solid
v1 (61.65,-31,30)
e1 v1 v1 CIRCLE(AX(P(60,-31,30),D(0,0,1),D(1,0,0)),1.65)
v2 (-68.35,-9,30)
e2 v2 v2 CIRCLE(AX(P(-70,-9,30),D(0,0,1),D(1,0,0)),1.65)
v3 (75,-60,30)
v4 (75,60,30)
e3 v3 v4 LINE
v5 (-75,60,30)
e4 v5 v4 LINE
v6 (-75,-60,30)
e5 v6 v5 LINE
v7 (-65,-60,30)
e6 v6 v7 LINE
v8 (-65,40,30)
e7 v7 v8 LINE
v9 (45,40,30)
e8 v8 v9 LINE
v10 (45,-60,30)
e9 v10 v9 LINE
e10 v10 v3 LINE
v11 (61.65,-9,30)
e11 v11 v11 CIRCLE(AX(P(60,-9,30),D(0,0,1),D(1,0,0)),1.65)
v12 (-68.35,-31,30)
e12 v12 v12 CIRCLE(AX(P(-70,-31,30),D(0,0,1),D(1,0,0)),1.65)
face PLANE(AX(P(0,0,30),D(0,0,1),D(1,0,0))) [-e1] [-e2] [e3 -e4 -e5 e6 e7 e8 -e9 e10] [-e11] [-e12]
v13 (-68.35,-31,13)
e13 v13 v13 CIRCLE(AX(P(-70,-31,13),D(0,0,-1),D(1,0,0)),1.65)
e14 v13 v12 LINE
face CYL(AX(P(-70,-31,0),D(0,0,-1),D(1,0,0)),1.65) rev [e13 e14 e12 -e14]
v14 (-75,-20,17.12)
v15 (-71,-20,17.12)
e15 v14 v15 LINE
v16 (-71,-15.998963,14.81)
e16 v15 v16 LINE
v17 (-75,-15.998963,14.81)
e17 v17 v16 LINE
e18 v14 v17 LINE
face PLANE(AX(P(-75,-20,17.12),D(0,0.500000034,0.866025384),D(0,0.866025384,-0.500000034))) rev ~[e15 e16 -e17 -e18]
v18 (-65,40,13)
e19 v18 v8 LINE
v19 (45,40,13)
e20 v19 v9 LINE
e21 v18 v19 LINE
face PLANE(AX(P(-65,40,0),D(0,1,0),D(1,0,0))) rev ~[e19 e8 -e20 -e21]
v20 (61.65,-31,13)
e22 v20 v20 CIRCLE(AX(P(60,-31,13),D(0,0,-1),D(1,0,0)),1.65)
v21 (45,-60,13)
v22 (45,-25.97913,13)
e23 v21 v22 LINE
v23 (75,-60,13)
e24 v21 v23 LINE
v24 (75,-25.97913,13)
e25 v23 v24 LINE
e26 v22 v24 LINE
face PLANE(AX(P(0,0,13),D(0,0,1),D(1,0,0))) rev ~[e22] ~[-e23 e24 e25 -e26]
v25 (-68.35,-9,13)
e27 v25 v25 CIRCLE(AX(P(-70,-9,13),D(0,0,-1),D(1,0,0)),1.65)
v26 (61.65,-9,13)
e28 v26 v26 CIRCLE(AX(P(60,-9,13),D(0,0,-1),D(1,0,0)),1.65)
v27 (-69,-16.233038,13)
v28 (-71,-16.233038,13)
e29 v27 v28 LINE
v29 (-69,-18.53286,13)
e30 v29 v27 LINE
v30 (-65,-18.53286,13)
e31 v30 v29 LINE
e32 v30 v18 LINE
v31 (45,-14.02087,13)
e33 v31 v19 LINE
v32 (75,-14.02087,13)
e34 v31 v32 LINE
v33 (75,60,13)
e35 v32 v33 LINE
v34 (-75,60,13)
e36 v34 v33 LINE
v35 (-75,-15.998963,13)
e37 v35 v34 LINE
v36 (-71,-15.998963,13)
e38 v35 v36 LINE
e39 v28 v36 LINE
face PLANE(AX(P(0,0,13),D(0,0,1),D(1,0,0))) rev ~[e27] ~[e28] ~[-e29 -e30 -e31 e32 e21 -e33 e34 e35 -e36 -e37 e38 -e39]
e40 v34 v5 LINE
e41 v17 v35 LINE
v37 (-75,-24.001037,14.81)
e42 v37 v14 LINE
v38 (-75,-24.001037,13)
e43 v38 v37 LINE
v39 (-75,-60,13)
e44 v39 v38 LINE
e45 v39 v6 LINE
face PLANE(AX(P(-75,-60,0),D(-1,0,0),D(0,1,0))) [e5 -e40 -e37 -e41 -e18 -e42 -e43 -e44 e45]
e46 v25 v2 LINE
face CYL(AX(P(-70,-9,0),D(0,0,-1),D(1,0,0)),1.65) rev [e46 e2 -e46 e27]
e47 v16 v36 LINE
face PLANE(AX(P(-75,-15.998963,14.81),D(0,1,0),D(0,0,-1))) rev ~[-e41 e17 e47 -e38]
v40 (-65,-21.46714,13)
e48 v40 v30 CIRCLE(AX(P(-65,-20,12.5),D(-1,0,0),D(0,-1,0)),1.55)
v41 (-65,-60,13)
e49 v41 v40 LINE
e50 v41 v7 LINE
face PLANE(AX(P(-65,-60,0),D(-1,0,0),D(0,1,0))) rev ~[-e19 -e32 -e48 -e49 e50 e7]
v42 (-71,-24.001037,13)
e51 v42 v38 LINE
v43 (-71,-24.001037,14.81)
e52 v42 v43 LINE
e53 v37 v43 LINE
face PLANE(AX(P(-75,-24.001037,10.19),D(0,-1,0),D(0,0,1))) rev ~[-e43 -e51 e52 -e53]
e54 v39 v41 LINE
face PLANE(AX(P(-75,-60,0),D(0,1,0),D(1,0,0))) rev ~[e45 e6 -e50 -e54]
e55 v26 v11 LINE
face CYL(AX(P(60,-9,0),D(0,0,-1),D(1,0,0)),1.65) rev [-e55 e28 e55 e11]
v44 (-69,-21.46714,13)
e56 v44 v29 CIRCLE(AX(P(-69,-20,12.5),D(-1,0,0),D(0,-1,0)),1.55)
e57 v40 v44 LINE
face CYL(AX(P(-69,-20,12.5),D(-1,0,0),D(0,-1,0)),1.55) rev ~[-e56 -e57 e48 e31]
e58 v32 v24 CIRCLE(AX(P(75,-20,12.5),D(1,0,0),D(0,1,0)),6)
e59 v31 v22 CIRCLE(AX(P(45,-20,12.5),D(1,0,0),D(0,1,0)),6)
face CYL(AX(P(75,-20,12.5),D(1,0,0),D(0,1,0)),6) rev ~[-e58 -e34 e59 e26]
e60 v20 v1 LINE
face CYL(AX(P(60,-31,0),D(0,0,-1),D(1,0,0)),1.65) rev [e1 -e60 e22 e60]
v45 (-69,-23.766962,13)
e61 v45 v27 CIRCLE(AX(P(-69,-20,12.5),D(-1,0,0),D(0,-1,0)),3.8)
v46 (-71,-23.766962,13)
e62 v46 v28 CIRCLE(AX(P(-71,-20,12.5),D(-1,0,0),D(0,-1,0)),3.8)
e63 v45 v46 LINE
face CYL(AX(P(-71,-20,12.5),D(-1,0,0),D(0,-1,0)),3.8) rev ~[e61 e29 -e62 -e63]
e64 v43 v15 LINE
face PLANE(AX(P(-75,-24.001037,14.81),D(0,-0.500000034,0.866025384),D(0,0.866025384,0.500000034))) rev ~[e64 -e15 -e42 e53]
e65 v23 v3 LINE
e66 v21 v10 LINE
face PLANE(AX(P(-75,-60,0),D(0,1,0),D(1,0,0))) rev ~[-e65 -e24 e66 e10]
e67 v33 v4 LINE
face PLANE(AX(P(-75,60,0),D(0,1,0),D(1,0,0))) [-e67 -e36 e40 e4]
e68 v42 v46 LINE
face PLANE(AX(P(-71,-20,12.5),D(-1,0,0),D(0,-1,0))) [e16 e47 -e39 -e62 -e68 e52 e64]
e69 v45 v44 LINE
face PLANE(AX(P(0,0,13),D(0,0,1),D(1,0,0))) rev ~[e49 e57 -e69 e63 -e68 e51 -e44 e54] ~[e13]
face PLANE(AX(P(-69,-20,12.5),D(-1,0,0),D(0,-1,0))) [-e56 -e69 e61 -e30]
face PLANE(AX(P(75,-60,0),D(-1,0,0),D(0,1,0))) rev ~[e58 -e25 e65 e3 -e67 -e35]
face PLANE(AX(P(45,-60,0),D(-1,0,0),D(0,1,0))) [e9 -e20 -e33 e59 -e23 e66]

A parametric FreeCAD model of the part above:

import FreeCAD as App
import Part
import Sketcher

V = App.Vector
Q = App.Units.Quantity

doc = App.newDocument("Part")
body = doc.addObject("PartDesign::Body", "Body")

# Sketch on XY plane
sketch1 = body.newObject("Sketcher::SketchObject", "Sketch")
sketch1.AttachmentSupport = (doc.getObject("XY_Plane"), [""])
sketch1.MapMode = "FlatFace"
sketch1.addGeometry([
    Part.LineSegment(V(-75, 60, 0), V(-75, -60, 0)),
    Part.LineSegment(V(-75, -60, 0), V(75, -60, 0)),
    Part.LineSegment(V(75, -60, 0), V(75, 60, 0)),
    Part.LineSegment(V(75, 60, 0), V(-75, 60, 0)),
], False)
sketch1.addConstraint([
    Sketcher.Constraint("Coincident", 0, 2, 1, 1),
    Sketcher.Constraint("Coincident", 1, 2, 2, 1),
    Sketcher.Constraint("Coincident", 2, 2, 3, 1),
    Sketcher.Constraint("Coincident", 3, 2, 0, 1),
    Sketcher.Constraint("Vertical", 0),
    Sketcher.Constraint("Horizontal", 1),
    Sketcher.Constraint("Vertical", 2),
    Sketcher.Constraint("Horizontal", 3),
    Sketcher.Constraint("Symmetric", 0, 2, 2, 2, -1, 1),
    Sketcher.Constraint("DistanceX", 1, 1, 1, 2, 150.0),
    Sketcher.Constraint("DistanceY", 0, 2, 0, 1, 120.0),
])
pad1 = body.newObject("PartDesign::Pad", "Pad")
pad1.Profile = sketch1
pad1.Length = 30

# Sketch on XY plane
sketch2 = body.newObject("Sketcher::SketchObject", "Sketch001")
sketch2.AttachmentSupport = (doc.getObject("XY_Plane"), [""])
sketch2.MapMode = "FlatFace"
sketch2.addGeometry([
    Part.LineSegment(V(-65, 40, 0), V(-65, -60, 0)),
    Part.LineSegment(V(-65, -60, 0), V(45, -60, 0)),
    Part.LineSegment(V(45, -60, 0), V(45, 40, 0)),
    Part.LineSegment(V(45, 40, 0), V(-65, 40, 0)),
], False)
sketch2.addConstraint([
    Sketcher.Constraint("Coincident", 0, 2, 1, 1),
    Sketcher.Constraint("Coincident", 1, 2, 2, 1),
    Sketcher.Constraint("Coincident", 2, 2, 3, 1),
    Sketcher.Constraint("Coincident", 3, 2, 0, 1),
    Sketcher.Constraint("Vertical", 0),
    Sketcher.Constraint("Horizontal", 1),
    Sketcher.Constraint("Vertical", 2),
    Sketcher.Constraint("Horizontal", 3),
    Sketcher.Constraint("DistanceX", 1, 1, 1, 2, 110.0),
    Sketcher.Constraint("DistanceY", 0, 2, 0, 1, 100.0),
    Sketcher.Constraint("DistanceX", 0, 2, -1, 1, 65.0),
    Sketcher.Constraint("DistanceY", 0, 2, -1, 1, 60.0),
])
pocket1 = body.newObject("PartDesign::Pocket", "Pocket")
pocket1.Profile = sketch2
pocket1.Type = "ThroughAll"
pocket1.Reversed = True

# Sketch on YZ plane
sketch3 = body.newObject("Sketcher::SketchObject", "Sketch002")
sketch3.AttachmentSupport = (doc.getObject("YZ_Plane"), [""])
sketch3.MapMode = "FlatFace"
sketch3.AttachmentOffset = App.Placement(V(0, 0, -75), App.Rotation())
sketch3.addGeometry([
    Part.LineSegment(V(-20, 17.12, 0), V(-15.998963, 14.81, 0)),  # 0
    Part.LineSegment(V(-15.998963, 14.81, 0), V(-15.998963, 10.19, 0)),  # 1
    Part.LineSegment(V(-15.998963, 10.19, 0), V(-20, 7.88, 0)),  # 2
    Part.LineSegment(V(-20, 7.88, 0), V(-24.001037, 10.19, 0)),  # 3
    Part.LineSegment(V(-24.001037, 10.19, 0), V(-24.001037, 14.81, 0)),  # 4
    Part.LineSegment(V(-24.001037, 14.81, 0), V(-20, 17.12, 0)),  # 5
], False)
sketch3.addConstraint([
    Sketcher.Constraint("Coincident", 0, 2, 1, 1),
    Sketcher.Constraint("Coincident", 1, 2, 2, 1),
    Sketcher.Constraint("Coincident", 2, 2, 3, 1),
    Sketcher.Constraint("Coincident", 3, 2, 4, 1),
    Sketcher.Constraint("Coincident", 4, 2, 5, 1),
    Sketcher.Constraint("Coincident", 5, 2, 0, 1),
    Sketcher.Constraint("Vertical", 1),
    Sketcher.Constraint("Vertical", 4),
    Sketcher.Constraint("Parallel", 0, 3),
    Sketcher.Constraint("Parallel", 2, 5),
    Sketcher.Constraint("Horizontal", 1, 2, 3, 2),
    Sketcher.Constraint("Horizontal", 0, 2, 4, 2),
    Sketcher.Constraint("Vertical", 2, 2, 5, 2),
    Sketcher.Constraint("Angle", 0, Q("-30.000002 deg")),
    Sketcher.Constraint("DistanceX", 2, 2, -1, 1, 20.0),
    Sketcher.Constraint("DistanceY", 1, 2, 1, 1, 4.62),
    Sketcher.Constraint("Distance", 0, 4.62),
    Sketcher.Constraint("DistanceY", -1, 1, 0, 2, 14.81),
])
pocket2 = body.newObject("PartDesign::Pocket", "Pocket001")
pocket2.Profile = sketch3
pocket2.Length = 4
pocket2.Reversed = True

# Sketch on YZ plane
sketch4 = body.newObject("Sketcher::SketchObject", "Sketch003")
sketch4.AttachmentSupport = (doc.getObject("YZ_Plane"), [""])
sketch4.MapMode = "FlatFace"
sketch4.AttachmentOffset = App.Placement(V(0, 0, -71), App.Rotation())
sketch4.addGeometry(Part.Circle(V(-20, 12.5, 0), V(0, 0, 1), 3.8), False)
sketch4.addConstraint([
    Sketcher.Constraint("Diameter", 0, 7.6),
    Sketcher.Constraint("DistanceX", 0, 3, -1, 1, 20.0),
    Sketcher.Constraint("DistanceY", -1, 1, 0, 3, 12.5),
])
pocket3 = body.newObject("PartDesign::Pocket", "Pocket002")
pocket3.Profile = sketch4
pocket3.Length = 2
pocket3.Reversed = True

# Sketch on YZ plane
sketch5 = body.newObject("Sketcher::SketchObject", "Sketch004")
sketch5.AttachmentSupport = (doc.getObject("YZ_Plane"), [""])
sketch5.MapMode = "FlatFace"
sketch5.AttachmentOffset = App.Placement(V(0, 0, -69), App.Rotation())
sketch5.addGeometry(Part.Circle(V(-20, 12.5, 0), V(0, 0, 1), 1.55), False)
sketch5.addConstraint([
    Sketcher.Constraint("Diameter", 0, 3.1),
    Sketcher.Constraint("DistanceX", 0, 3, -1, 1, 20.0),
    Sketcher.Constraint("DistanceY", -1, 1, 0, 3, 12.5),
])
pocket4 = body.newObject("PartDesign::Pocket", "Pocket003")
pocket4.Profile = sketch5
pocket4.Length = 7
pocket4.Reversed = True

# Sketch on YZ plane
sketch6 = body.newObject("Sketcher::SketchObject", "Sketch005")
sketch6.AttachmentSupport = (doc.getObject("YZ_Plane"), [""])
sketch6.MapMode = "FlatFace"
sketch6.AttachmentOffset = App.Placement(V(0, 0, 75), App.Rotation())
sketch6.addGeometry(Part.Circle(V(-20, 12.5, 0), V(0, 0, 1), 6), False)
sketch6.addConstraint([
    Sketcher.Constraint("Diameter", 0, 12.0),
    Sketcher.Constraint("DistanceX", 0, 3, -1, 1, 20.0),
    Sketcher.Constraint("DistanceY", -1, 1, 0, 3, 12.5),
])
pocket5 = body.newObject("PartDesign::Pocket", "Pocket004")
pocket5.Profile = sketch6
pocket5.Length = 30

# Sketch on XZ plane
sketch7 = body.newObject("Sketcher::SketchObject", "Sketch006")
sketch7.AttachmentSupport = (doc.getObject("XZ_Plane"), [""])
sketch7.MapMode = "FlatFace"
sketch7.AttachmentOffset = App.Placement(V(0, 0, -60), App.Rotation())
sketch7.addGeometry([
    Part.Circle(V(-20, 6, 0), V(0, 0, 1), 0.5),
    Part.Circle(V(5, 6, 0), V(0, 0, 1), 0.5),
], False)
sketch7.addConstraint([
    Sketcher.Constraint("Equal", 0, 1),
    Sketcher.Constraint("Horizontal", 0, 3, 1, 3),
    Sketcher.Constraint("Diameter", 0, 1.0),
    Sketcher.Constraint("DistanceX", 0, 3, -1, 1, 20.0),
    Sketcher.Constraint("DistanceY", -1, 1, 0, 3, 6.0),
    Sketcher.Constraint("DistanceX", -1, 1, 1, 3, 5.0),
])
pocket6 = body.newObject("PartDesign::Pocket", "Pocket005")
pocket6.Profile = sketch7
pocket6.Length = 1
pocket6.Reversed = True

# Sketch on XY plane
sketch8 = body.newObject("Sketcher::SketchObject", "Sketch007")
sketch8.AttachmentSupport = (doc.getObject("XY_Plane"), [""])
sketch8.MapMode = "FlatFace"
sketch8.addGeometry([
    Part.LineSegment(V(-75, 60, 0), V(-75, -60, 0)),
    Part.LineSegment(V(-75, -60, 0), V(75, -60, 0)),
    Part.LineSegment(V(75, -60, 0), V(75, 60, 0)),
    Part.LineSegment(V(75, 60, 0), V(-75, 60, 0)),
], False)
sketch8.addConstraint([
    Sketcher.Constraint("Coincident", 0, 2, 1, 1),
    Sketcher.Constraint("Coincident", 1, 2, 2, 1),
    Sketcher.Constraint("Coincident", 2, 2, 3, 1),
    Sketcher.Constraint("Coincident", 3, 2, 0, 1),
    Sketcher.Constraint("Vertical", 0),
    Sketcher.Constraint("Horizontal", 1),
    Sketcher.Constraint("Vertical", 2),
    Sketcher.Constraint("Horizontal", 3),
    Sketcher.Constraint("Symmetric", 0, 2, 2, 2, -1, 1),
    Sketcher.Constraint("DistanceX", 1, 1, 1, 2, 150.0),
    Sketcher.Constraint("DistanceY", 0, 2, 0, 1, 120.0),
])
pocket7 = body.newObject("PartDesign::Pocket", "Pocket006")
pocket7.Profile = sketch8
pocket7.Length = 13
pocket7.Reversed = True

# Sketch on XY plane
sketch9 = body.newObject("Sketcher::SketchObject", "Sketch008")
sketch9.AttachmentSupport = (doc.getObject("XY_Plane"), [""])
sketch9.MapMode = "FlatFace"
sketch9.addGeometry([
    Part.Circle(V(-70, -9, 0), V(0, 0, 1), 1.65),
    Part.Circle(V(-70, -31, 0), V(0, 0, 1), 1.65),
    Part.Circle(V(60, -9, 0), V(0, 0, 1), 1.65),
    Part.Circle(V(60, -31, 0), V(0, 0, 1), 1.65),
], False)
sketch9.addConstraint([
    Sketcher.Constraint("Equal", 0, 1),
    Sketcher.Constraint("Equal", 1, 2),
    Sketcher.Constraint("Equal", 2, 3),
    Sketcher.Constraint("Horizontal", 0, 3, 2, 3),
    Sketcher.Constraint("Horizontal", 1, 3, 3, 3),
    Sketcher.Constraint("Vertical", 0, 3, 1, 3),
    Sketcher.Constraint("Vertical", 2, 3, 3, 3),
    Sketcher.Constraint("Diameter", 0, 3.3),
    Sketcher.Constraint("DistanceX", 0, 3, -1, 1, 70.0),
    Sketcher.Constraint("DistanceY", 0, 3, -1, 1, 9.0),
    Sketcher.Constraint("DistanceY", 1, 3, -1, 1, 31.0),
    Sketcher.Constraint("DistanceX", -1, 1, 2, 3, 60.0),
])
pocket8 = body.newObject("PartDesign::Pocket", "Pocket007")
pocket8.Profile = sketch9
pocket8.Type = "ThroughAll"
pocket8.Reversed = True

doc.recompute()
